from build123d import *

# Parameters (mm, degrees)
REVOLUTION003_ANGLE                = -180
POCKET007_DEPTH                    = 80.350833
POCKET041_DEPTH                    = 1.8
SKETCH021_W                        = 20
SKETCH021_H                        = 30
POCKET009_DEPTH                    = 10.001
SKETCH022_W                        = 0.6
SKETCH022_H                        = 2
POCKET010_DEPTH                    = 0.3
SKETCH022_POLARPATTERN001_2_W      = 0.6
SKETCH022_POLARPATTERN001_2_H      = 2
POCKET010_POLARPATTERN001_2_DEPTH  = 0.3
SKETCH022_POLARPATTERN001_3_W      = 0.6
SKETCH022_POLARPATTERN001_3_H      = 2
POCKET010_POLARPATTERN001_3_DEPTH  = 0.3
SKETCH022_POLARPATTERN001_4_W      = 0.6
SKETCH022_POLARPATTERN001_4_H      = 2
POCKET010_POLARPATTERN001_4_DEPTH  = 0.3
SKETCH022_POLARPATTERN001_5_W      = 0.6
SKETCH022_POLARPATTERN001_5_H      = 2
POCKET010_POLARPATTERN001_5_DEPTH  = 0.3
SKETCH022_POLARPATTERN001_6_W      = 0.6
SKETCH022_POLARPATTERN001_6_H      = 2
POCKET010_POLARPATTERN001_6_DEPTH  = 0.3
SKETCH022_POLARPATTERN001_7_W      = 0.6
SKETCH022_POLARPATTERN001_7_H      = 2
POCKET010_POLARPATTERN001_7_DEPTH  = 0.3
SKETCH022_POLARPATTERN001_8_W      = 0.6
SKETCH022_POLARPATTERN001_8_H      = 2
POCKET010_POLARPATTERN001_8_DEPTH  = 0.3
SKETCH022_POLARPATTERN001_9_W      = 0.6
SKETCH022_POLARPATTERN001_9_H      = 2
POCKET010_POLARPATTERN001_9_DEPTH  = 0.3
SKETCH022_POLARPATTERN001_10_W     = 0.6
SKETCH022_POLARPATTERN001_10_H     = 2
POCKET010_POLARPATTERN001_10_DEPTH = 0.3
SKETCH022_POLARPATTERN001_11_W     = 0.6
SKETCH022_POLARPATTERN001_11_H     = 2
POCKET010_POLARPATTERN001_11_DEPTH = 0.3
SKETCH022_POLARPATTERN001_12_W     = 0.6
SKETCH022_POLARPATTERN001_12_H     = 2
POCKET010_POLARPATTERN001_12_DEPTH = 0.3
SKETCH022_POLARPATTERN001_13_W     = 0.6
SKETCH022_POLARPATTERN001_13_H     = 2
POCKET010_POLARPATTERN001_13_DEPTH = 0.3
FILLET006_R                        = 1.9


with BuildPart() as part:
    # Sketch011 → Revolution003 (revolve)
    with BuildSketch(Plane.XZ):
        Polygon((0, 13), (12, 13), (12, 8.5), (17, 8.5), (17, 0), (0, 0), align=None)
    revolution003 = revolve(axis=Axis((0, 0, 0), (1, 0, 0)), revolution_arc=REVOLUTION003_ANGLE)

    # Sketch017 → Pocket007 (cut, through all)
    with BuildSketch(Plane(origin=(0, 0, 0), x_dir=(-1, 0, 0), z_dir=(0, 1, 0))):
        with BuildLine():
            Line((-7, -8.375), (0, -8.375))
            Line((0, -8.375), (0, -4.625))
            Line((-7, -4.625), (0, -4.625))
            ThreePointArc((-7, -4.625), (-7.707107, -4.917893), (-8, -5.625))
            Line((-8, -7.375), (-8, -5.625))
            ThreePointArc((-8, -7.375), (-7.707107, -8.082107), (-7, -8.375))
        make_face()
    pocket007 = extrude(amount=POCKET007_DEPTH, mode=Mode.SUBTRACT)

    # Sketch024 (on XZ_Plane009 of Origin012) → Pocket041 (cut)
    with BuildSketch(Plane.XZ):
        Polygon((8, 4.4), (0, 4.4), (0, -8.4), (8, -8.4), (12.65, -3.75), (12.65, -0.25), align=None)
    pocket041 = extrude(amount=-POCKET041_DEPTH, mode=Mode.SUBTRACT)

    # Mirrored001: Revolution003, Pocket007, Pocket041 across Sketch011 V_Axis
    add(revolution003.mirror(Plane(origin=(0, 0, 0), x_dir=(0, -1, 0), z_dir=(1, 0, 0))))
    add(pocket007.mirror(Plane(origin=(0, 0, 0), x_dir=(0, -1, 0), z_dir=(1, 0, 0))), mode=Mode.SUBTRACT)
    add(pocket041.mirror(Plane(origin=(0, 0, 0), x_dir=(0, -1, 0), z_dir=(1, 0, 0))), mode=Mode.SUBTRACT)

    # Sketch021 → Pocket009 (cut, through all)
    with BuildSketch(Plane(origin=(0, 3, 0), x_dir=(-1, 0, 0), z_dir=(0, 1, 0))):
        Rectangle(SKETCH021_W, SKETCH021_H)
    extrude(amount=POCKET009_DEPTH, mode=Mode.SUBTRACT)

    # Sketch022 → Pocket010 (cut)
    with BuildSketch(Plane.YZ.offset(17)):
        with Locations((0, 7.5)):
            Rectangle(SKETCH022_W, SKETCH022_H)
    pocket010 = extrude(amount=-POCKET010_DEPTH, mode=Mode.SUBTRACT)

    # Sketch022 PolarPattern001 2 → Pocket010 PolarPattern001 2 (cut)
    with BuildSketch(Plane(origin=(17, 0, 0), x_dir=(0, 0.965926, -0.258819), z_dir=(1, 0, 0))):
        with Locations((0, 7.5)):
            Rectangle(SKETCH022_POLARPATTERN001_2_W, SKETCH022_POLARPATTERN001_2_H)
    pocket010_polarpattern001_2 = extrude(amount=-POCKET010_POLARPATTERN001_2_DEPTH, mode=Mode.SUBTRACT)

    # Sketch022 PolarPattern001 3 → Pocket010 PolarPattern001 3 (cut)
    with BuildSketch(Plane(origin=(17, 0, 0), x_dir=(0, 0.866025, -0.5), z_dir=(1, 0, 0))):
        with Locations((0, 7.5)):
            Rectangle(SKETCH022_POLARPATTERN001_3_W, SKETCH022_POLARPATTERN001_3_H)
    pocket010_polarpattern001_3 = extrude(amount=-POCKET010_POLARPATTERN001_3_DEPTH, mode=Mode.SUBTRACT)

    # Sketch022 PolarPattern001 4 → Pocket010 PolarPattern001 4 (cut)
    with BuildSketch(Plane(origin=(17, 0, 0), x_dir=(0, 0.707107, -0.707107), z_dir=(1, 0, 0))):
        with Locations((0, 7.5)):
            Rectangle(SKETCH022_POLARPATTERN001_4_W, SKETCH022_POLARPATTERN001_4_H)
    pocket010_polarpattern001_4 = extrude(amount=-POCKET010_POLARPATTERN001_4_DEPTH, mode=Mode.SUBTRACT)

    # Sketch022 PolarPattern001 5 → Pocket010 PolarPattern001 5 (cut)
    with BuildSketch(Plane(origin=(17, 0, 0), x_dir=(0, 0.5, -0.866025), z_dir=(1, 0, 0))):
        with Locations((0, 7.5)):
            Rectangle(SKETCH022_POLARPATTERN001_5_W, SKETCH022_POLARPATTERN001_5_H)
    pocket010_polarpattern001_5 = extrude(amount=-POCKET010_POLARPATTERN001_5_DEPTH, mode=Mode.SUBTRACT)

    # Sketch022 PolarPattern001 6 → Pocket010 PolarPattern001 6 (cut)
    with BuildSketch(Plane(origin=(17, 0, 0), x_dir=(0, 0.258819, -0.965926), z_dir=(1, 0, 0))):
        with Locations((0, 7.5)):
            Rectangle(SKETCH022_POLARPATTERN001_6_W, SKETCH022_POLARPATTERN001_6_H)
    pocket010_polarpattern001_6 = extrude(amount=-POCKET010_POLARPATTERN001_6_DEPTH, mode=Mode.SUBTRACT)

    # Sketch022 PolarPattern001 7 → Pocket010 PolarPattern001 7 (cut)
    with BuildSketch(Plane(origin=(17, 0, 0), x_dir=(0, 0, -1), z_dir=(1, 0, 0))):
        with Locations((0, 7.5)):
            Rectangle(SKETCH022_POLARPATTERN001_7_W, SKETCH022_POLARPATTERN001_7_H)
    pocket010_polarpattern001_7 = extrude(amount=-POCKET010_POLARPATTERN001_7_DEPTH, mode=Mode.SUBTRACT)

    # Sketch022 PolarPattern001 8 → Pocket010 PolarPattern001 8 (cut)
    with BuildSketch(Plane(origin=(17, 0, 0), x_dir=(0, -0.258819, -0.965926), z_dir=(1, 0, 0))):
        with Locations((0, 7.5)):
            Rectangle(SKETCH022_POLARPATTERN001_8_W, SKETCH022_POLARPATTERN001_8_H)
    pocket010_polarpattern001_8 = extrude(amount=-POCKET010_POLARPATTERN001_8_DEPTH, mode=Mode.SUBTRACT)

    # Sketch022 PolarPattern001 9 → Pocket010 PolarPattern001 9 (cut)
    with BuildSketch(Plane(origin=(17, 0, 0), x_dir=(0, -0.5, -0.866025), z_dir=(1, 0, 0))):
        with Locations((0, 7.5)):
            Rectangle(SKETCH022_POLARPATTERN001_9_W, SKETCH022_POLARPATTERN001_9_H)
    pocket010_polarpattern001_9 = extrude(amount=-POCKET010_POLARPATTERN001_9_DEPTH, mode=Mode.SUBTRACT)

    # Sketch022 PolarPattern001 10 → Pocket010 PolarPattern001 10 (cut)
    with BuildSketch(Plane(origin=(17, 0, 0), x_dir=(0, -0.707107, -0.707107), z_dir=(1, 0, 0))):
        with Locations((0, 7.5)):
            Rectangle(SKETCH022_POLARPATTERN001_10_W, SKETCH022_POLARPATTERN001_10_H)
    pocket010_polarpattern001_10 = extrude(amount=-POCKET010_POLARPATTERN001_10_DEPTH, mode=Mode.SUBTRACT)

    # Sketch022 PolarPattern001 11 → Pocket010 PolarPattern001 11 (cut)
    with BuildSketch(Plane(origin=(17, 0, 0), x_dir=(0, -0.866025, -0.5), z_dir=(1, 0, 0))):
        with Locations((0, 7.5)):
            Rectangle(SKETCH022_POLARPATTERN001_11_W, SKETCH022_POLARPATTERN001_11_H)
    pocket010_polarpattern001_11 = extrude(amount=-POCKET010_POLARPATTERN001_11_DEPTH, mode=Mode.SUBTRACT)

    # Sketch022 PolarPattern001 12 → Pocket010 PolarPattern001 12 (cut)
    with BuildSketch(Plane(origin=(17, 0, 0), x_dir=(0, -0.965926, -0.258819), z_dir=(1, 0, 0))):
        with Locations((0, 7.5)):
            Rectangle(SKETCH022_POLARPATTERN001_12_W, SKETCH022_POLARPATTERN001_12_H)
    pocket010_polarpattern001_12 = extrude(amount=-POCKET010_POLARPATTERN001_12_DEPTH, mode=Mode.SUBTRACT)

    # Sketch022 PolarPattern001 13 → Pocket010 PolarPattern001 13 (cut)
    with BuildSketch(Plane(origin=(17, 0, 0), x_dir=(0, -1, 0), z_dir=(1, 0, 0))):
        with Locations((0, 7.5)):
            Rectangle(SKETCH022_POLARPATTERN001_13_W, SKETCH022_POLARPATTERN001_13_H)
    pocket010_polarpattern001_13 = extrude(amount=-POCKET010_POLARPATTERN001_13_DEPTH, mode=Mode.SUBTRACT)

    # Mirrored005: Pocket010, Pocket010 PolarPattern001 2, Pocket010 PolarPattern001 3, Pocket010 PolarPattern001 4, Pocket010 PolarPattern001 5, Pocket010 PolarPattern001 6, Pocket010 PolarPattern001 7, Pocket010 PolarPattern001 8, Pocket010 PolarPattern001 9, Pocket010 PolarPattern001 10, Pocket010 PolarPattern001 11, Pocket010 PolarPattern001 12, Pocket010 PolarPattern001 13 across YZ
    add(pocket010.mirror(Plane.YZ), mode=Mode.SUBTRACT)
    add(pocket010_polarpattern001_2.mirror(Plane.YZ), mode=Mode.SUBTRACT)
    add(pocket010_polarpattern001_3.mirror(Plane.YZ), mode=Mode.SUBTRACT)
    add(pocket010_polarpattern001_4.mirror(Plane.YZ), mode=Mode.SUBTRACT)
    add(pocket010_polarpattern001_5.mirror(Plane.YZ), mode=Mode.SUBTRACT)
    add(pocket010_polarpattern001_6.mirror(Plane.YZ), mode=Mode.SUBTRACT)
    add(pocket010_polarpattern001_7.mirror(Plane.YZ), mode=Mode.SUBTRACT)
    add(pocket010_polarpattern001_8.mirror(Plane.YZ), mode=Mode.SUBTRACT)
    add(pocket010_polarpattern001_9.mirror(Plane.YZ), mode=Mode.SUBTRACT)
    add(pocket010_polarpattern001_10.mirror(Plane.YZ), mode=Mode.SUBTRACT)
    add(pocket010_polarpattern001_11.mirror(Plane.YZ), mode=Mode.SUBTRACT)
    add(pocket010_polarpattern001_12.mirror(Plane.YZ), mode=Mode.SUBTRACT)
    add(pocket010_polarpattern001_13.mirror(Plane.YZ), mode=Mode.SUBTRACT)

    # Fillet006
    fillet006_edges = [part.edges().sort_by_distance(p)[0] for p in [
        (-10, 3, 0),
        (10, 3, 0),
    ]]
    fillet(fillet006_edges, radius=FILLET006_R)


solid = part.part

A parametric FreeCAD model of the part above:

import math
import FreeCAD as App
import Part
import Sketcher
Q = App.Units.Quantity


def edges_at(feature, points):
    """Names of the edges that pass closest to the given points."""
    edges = feature.Shape.Edges
    near = lambda p: min(range(len(edges)), key=lambda i: edges[i].distToShape(Part.Vertex(*p))[0])
    return sorted({f"Edge{near(p) + 1}" for p in points})


def add_polygon(sketch, points):
    """Adds a closed chain of lines whose ends are joined by coincident constraints."""
    first, n = sketch.GeometryCount, len(points)
    for a, b in zip(points, points[1:] + points[:1]):
        sketch.addGeometry(Part.LineSegment(App.Vector(*a, 0), App.Vector(*b, 0)), False)
    for i in range(n):
        sketch.addConstraint(Sketcher.Constraint("Coincident", first + i, 2, first + (i + 1) % n, 1))

doc = App.newDocument("Part")
body = doc.addObject("PartDesign::Body", "Body")

# Sketch on XZ plane
sketch1 = body.newObject("Sketcher::SketchObject", "Sketch")
sketch1.AttachmentSupport = (doc.getObject("XZ_Plane"), [""])
sketch1.MapMode = "FlatFace"
add_polygon(sketch1, [(12, 13), (0, 13), (0, 0), (17, 0), (17, 8.5), (12, 8.5)])  # lines 0-5
sketch1.addConstraint([
    Sketcher.Constraint("Horizontal", 0),
    Sketcher.Constraint("Vertical", 1),
    Sketcher.Constraint("Horizontal", 2),
    Sketcher.Constraint("Vertical", 3),
    Sketcher.Constraint("Horizontal", 4),
    Sketcher.Constraint("Vertical", 5),
    Sketcher.Constraint("Coincident", 1, 2, -1, 1),
    Sketcher.Constraint("DistanceX", 0, 2, 0, 1, Q("12 mm")),
    Sketcher.Constraint("DistanceX", 2, 1, 2, 2, Q("17 mm")),
    Sketcher.Constraint("DistanceY", 1, 2, 1, 1, Q("13 mm")),
    Sketcher.Constraint("DistanceY", 3, 1, 3, 2, Q("8.5 mm")),
])
revolution = body.newObject("PartDesign::Revolution", "Revolution")
revolution.Profile = sketch1
revolution.ReferenceAxis = (sketch1, ["H_Axis"])
revolution.Angle = 180
revolution.Reversed = True

# Sketch on XZ plane
sketch2 = body.newObject("Sketcher::SketchObject", "Sketch001")
sketch2.AttachmentSupport = (doc.getObject("XZ_Plane"), [""])
sketch2.MapMode = "FlatFace"
sketch2.addGeometry([
    Part.LineSegment(App.Vector(7, -8.4, 0), App.Vector(0, -8.4, 0)),  # 0
    Part.LineSegment(App.Vector(0, -8.4, 0), App.Vector(0, -4.6, 0)),  # 1
    Part.LineSegment(App.Vector(0, -4.6, 0), App.Vector(7, -4.6, 0)),  # 2
    Part.ArcOfCircle(Part.Circle(App.Vector(7, -5.6, 0), App.Vector(0, 0, 1), 1), math.radians(0), math.radians(90)),  # 3
    Part.LineSegment(App.Vector(8, -5.6, 0), App.Vector(8, -7.4, 0)),  # 4
    Part.ArcOfCircle(Part.Circle(App.Vector(7, -7.4, 0), App.Vector(0, 0, 1), 1), math.radians(-90), math.radians(0)),  # 5
], False)
sketch2.addConstraint([
    Sketcher.Constraint("Coincident", 0, 2, 1, 1),
    Sketcher.Constraint("Coincident", 1, 2, 2, 1),
    Sketcher.Constraint("Tangent", 2, 2, 3, 2),
    Sketcher.Constraint("Tangent", 3, 1, 4, 1),
    Sketcher.Constraint("Tangent", 4, 2, 5, 2),
    Sketcher.Constraint("Tangent", 5, 1, 0, 1),
    Sketcher.Constraint("Horizontal", 0),
    Sketcher.Constraint("Vertical", 1),
    Sketcher.Constraint("Horizontal", 2),
    Sketcher.Constraint("Vertical", 4),
    Sketcher.Constraint("Equal", 3, 5),
    Sketcher.Constraint("PointOnObject", 0, 2, -2),
    Sketcher.Constraint("Radius", 3, Q("0.999999 mm")),
    Sketcher.Constraint("DistanceX", 0, 2, 0, 1, Q("7 mm")),
    Sketcher.Constraint("DistanceY", 1, 1, 1, 2, Q("3.75 mm")),
    Sketcher.Constraint("DistanceY", 3, 3, -1, 1, Q("5.624999 mm")),
])
pocket1 = body.newObject("PartDesign::Pocket", "Pocket")
pocket1.Profile = sketch2
pocket1.Type = "ThroughAll"

# Sketch on XZ plane
sketch3 = body.newObject("Sketcher::SketchObject", "Sketch002")
sketch3.AttachmentSupport = (doc.getObject("XZ_Plane"), [""])
sketch3.MapMode = "FlatFace"
add_polygon(sketch3, [(8, 4.4), (0, 4.4), (0, -8.4), (8, -8.4), (12.7, -3.8), (12.7, -0.2)])  # lines 0-5
sketch3.addConstraint([
    Sketcher.Constraint("Horizontal", 0),
    Sketcher.Constraint("Vertical", 1),
    Sketcher.Constraint("Horizontal", 2),
    Sketcher.Constraint("Vertical", 4),
    Sketcher.Constraint("PointOnObject", 0, 2, -2),
    Sketcher.Constraint("Perpendicular", 3, 5),
    Sketcher.Constraint("Vertical", 2, 2, 5, 2),
    Sketcher.Constraint("Equal", 3, 5),
    Sketcher.Constraint("DistanceX", 0, 2, 0, 1, Q("8 mm")),
    Sketcher.Constraint("DistanceY", 1, 2, 1, 1, Q("12.8 mm")),
    Sketcher.Constraint("DistanceY", 4, 1, 4, 2, Q("3.5 mm")),
    Sketcher.Constraint("DistanceY", -1, 1, 0, 2, Q("4.4 mm")),
])
pocket2 = body.newObject("PartDesign::Pocket", "Pocket001")
pocket2.Profile = sketch3
pocket2.Length = 1.8
doc.recompute()

mirrored = body.newObject("PartDesign::Mirrored", "Mirrored")
mirrored.Originals = [revolution, pocket1, pocket2]
mirrored.MirrorPlane = (doc.getObject("YZ_Plane"), [""])
body.Tip = mirrored

# Sketch on XZ plane
sketch4 = body.newObject("Sketcher::SketchObject", "Sketch003")
sketch4.AttachmentSupport = (doc.getObject("XZ_Plane"), [""])
sketch4.MapMode = "FlatFace"
sketch4.AttachmentOffset = App.Placement(App.Vector(0, 0, -3), App.Rotation())
add_polygon(sketch4, [(10, 15), (10, -15), (-10, -15), (-10, 15)])  # lines 0-3
sketch4.addConstraint([
    Sketcher.Constraint("Vertical", 0),
    Sketcher.Constraint("Horizontal", 1),
    Sketcher.Constraint("Vertical", 2),
    Sketcher.Constraint("Horizontal", 3),
    Sketcher.Constraint("Symmetric", 0, 2, 2, 2, -1, 1),
    Sketcher.Constraint("DistanceX", 1, 2, 1, 1, Q("20 mm")),
    Sketcher.Constraint("DistanceY", 0, 2, 0, 1, Q("30 mm")),
])
pocket3 = body.newObject("PartDesign::Pocket", "Pocket002")
pocket3.Profile = sketch4
pocket3.Type = "ThroughAll"

# Sketch on YZ plane
sketch5 = body.newObject("Sketcher::SketchObject", "Sketch004")
sketch5.AttachmentSupport = (doc.getObject("YZ_Plane"), [""])
sketch5.MapMode = "FlatFace"
sketch5.AttachmentOffset = App.Placement(App.Vector(0, 0, 17), App.Rotation())
add_polygon(sketch5, [(-0.3, 8.5), (-0.3, 6.5), (0.3, 6.5), (0.3, 8.5)])  # lines 0-3
sketch5.addConstraint([
    Sketcher.Constraint("Vertical", 0),
    Sketcher.Constraint("Horizontal", 1),
    Sketcher.Constraint("Vertical", 2),
    Sketcher.Constraint("Horizontal", 3),
    Sketcher.Constraint("DistanceY", 0, 2, 0, 1, Q("2 mm")),
    Sketcher.Constraint("DistanceX", 1, 1, 1, 2, Q("0.6 mm")),
    Sketcher.Constraint("DistanceX", 0, 2, -1, 1, Q("0.3 mm")),
    Sketcher.Constraint("DistanceY", -1, 1, 0, 2, Q("6.5 mm")),
])
pocket4 = body.newObject("PartDesign::Pocket", "Pocket003")
pocket4.Profile = sketch5
pocket4.Length = 0.3

# Sketch on YZ plane
sketch6 = body.newObject("Sketcher::SketchObject", "Sketch005")
sketch6.AttachmentSupport = (doc.getObject("YZ_Plane"), [""])
sketch6.MapMode = "FlatFace"
sketch6.AttachmentOffset = App.Placement(App.Vector(0, 0, 17), App.Rotation())
add_polygon(sketch6, [(1.9, 8.3), (1.4, 6.4), (2, 6.2), (2.5, 8.1)])  # lines 0-3
sketch6.addConstraint([
    Sketcher.Constraint("Perpendicular", 0, 1),
    Sketcher.Constraint("Perpendicular", 1, 2),
    Sketcher.Constraint("Perpendicular", 2, 3),
    Sketcher.Constraint("Angle", 0, Q("-104.999995 deg")),
    Sketcher.Constraint("Distance", 0, Q("2 mm")),
    Sketcher.Constraint("Distance", 1, Q("0.6 mm")),
    Sketcher.Constraint("DistanceX", -1, 1, 1, 2, Q("1.972101 mm")),
    Sketcher.Constraint("DistanceY", -1, 1, 0, 2, Q("6.356164 mm")),
])
pocket5 = body.newObject("PartDesign::Pocket", "Pocket004")
pocket5.Profile = sketch6
pocket5.Length = 0.3

# Sketch on YZ plane
sketch7 = body.newObject("Sketcher::SketchObject", "Sketch006")
sketch7.AttachmentSupport = (doc.getObject("YZ_Plane"), [""])
sketch7.MapMode = "FlatFace"
sketch7.AttachmentOffset = App.Placement(App.Vector(0, 0, 17), App.Rotation())
add_polygon(sketch7, [(4, 7.5), (3, 5.8), (3.5, 5.5), (4.5, 7.2)])  # lines 0-3
sketch7.addConstraint([
    Sketcher.Constraint("Perpendicular", 0, 1),
    Sketcher.Constraint("Perpendicular", 1, 2),
    Sketcher.Constraint("Perpendicular", 2, 3),
    Sketcher.Constraint("Angle", 0, Q("-120.000012 deg")),
    Sketcher.Constraint("Distance", 0, Q("2 mm")),
    Sketcher.Constraint("Distance", 1, Q("0.6 mm")),
    Sketcher.Constraint("DistanceX", -1, 1, 1, 2, Q("3.509809 mm")),
    Sketcher.Constraint("DistanceY", -1, 1, 0, 2, Q("5.779165 mm")),
])
pocket6 = body.newObject("PartDesign::Pocket", "Pocket005")
pocket6.Profile = sketch7
pocket6.Length = 0.3

# Sketch on YZ plane
sketch8 = body.newObject("Sketcher::SketchObject", "Sketch007")
sketch8.AttachmentSupport = (doc.getObject("YZ_Plane"), [""])
sketch8.MapMode = "FlatFace"
sketch8.AttachmentOffset = App.Placement(App.Vector(0, 0, 17), App.Rotation())
add_polygon(sketch8, [(5.8, 6.2), (4.4, 4.8), (4.8, 4.4), (6.2, 5.8)])  # lines 0-3
sketch8.addConstraint([
    Sketcher.Constraint("Perpendicular", 0, 1),
    Sketcher.Constraint("Perpendicular", 1, 2),
    Sketcher.Constraint("Perpendicular", 2, 3),
    Sketcher.Constraint("Angle", 0, Q("-135 deg")),
    Sketcher.Constraint("Distance", 0, Q("2 mm")),
    Sketcher.Constraint("Distance", 1, Q("0.6 mm")),
    Sketcher.Constraint("DistanceX", -1, 1, 2, 2, Q("6.22254 mm")),
    Sketcher.Constraint("DistanceY", -1, 1, 3, 2, Q("6.22254 mm")),
])
pocket7 = body.newObject("PartDesign::Pocket", "Pocket006")
pocket7.Profile = sketch8
pocket7.Length = 0.3

# Sketch on YZ plane
sketch9 = body.newObject("Sketcher::SketchObject", "Sketch008")
sketch9.AttachmentSupport = (doc.getObject("YZ_Plane"), [""])
sketch9.MapMode = "FlatFace"
sketch9.AttachmentOffset = App.Placement(App.Vector(0, 0, 17), App.Rotation())
add_polygon(sketch9, [(7.2, 4.5), (5.5, 3.5), (5.8, 3), (7.5, 4)])  # lines 0-3
sketch9.addConstraint([
    Sketcher.Constraint("Perpendicular", 0, 1),
    Sketcher.Constraint("Perpendicular", 1, 2),
    Sketcher.Constraint("Perpendicular", 2, 3),
    Sketcher.Constraint("Angle", 0, Q("-149.999988 deg")),
    Sketcher.Constraint("Distance", 0, Q("2 mm")),
    Sketcher.Constraint("Distance", 1, Q("0.6 mm")),
    Sketcher.Constraint("DistanceY", -1, 1, 0, 2, Q("3.509809 mm")),
    Sketcher.Constraint("DistanceX", -1, 1, 0, 2, Q("5.479164 mm")),
])
pocket8 = body.newObject("PartDesign::Pocket", "Pocket007")
pocket8.Profile = sketch9
pocket8.Length = 0.3

# Sketch on YZ plane
sketch10 = body.newObject("Sketcher::SketchObject", "Sketch009")
sketch10.AttachmentSupport = (doc.getObject("YZ_Plane"), [""])
sketch10.MapMode = "FlatFace"
sketch10.AttachmentOffset = App.Placement(App.Vector(0, 0, 17), App.Rotation())
add_polygon(sketch10, [(8.1, 2.5), (6.2, 2), (6.4, 1.4), (8.3, 1.9)])  # lines 0-3
sketch10.addConstraint([
    Sketcher.Constraint("Perpendicular", 0, 1),
    Sketcher.Constraint("Perpendicular", 1, 2),
    Sketcher.Constraint("Perpendicular", 2, 3),
    Sketcher.Constraint("Angle", 0, Q("-165.000005 deg")),
    Sketcher.Constraint("Distance", 0, Q("2 mm")),
    Sketcher.Constraint("Distance", 1, Q("0.6 mm")),
    Sketcher.Constraint("DistanceY", -1, 1, 0, 2, Q("1.972101 mm")),
    Sketcher.Constraint("DistanceX", -1, 1, 0, 2, Q("6.200872 mm")),
])
pocket9 = body.newObject("PartDesign::Pocket", "Pocket008")
pocket9.Profile = sketch10
pocket9.Length = 0.3

# Sketch on YZ plane
sketch11 = body.newObject("Sketcher::SketchObject", "Sketch010")
sketch11.AttachmentSupport = (doc.getObject("YZ_Plane"), [""])
sketch11.MapMode = "FlatFace"
sketch11.AttachmentOffset = App.Placement(App.Vector(0, 0, 17), App.Rotation())
add_polygon(sketch11, [(8.5, 0.3), (6.5, 0.3), (6.5, -0.3), (8.5, -0.3)])  # lines 0-3
sketch11.addConstraint([
    Sketcher.Constraint("Horizontal", 0),
    Sketcher.Constraint("Vertical", 1),
    Sketcher.Constraint("Horizontal", 2),
    Sketcher.Constraint("Vertical", 3),
    Sketcher.Constraint("DistanceX", 0, 2, 0, 1, Q("2 mm")),
    Sketcher.Constraint("DistanceY", 1, 2, 1, 1, Q("0.6 mm")),
    Sketcher.Constraint("DistanceX", -1, 1, 0, 2, Q("6.5 mm")),
    Sketcher.Constraint("DistanceY", -1, 1, 0, 2, Q("0.3 mm")),
])
pocket10 = body.newObject("PartDesign::Pocket", "Pocket009")
pocket10.Profile = sketch11
pocket10.Length = 0.3

# Sketch on YZ plane
sketch12 = body.newObject("Sketcher::SketchObject", "Sketch011")
sketch12.AttachmentSupport = (doc.getObject("YZ_Plane"), [""])
sketch12.MapMode = "FlatFace"
sketch12.AttachmentOffset = App.Placement(App.Vector(0, 0, 17), App.Rotation())
add_polygon(sketch12, [(8.3, -1.9), (6.4, -1.4), (6.2, -2), (8.1, -2.5)])  # lines 0-3
sketch12.addConstraint([
    Sketcher.Constraint("Perpendicular", 0, 1),
    Sketcher.Constraint("Perpendicular", 1, 2),
    Sketcher.Constraint("Perpendicular", 2, 3),
    Sketcher.Constraint("Angle", 0, Q("165.000005 deg")),
    Sketcher.Constraint("Distance", 0, Q("2 mm")),
    Sketcher.Constraint("Distance", 1, Q("0.6 mm")),
    Sketcher.Constraint("DistanceY", 1, 2, -1, 1, Q("1.972101 mm")),
    Sketcher.Constraint("DistanceX", -1, 1, 0, 2, Q("6.356164 mm")),
])
pocket11 = body.newObject("PartDesign::Pocket", "Pocket010")
pocket11.Profile = sketch12
pocket11.Length = 0.3

# Sketch on YZ plane
sketch13 = body.newObject("Sketcher::SketchObject", "Sketch012")
sketch13.AttachmentSupport = (doc.getObject("YZ_Plane"), [""])
sketch13.MapMode = "FlatFace"
sketch13.AttachmentOffset = App.Placement(App.Vector(0, 0, 17), App.Rotation())
add_polygon(sketch13, [(7.5, -4), (5.8, -3), (5.5, -3.5), (7.2, -4.5)])  # lines 0-3
sketch13.addConstraint([
    Sketcher.Constraint("Perpendicular", 0, 1),
    Sketcher.Constraint("Perpendicular", 1, 2),
    Sketcher.Constraint("Perpendicular", 2, 3),
    Sketcher.Constraint("Angle", 0, Q("149.999988 deg")),
    Sketcher.Constraint("Distance", 0, Q("2 mm")),
    Sketcher.Constraint("Distance", 1, Q("0.6 mm")),
    Sketcher.Constraint("DistanceY", 1, 2, -1, 1, Q("3.509809 mm")),
    Sketcher.Constraint("DistanceX", -1, 1, 0, 2, Q("5.779165 mm")),
])
pocket12 = body.newObject("PartDesign::Pocket", "Pocket011")
pocket12.Profile = sketch13
pocket12.Length = 0.3

# Sketch on YZ plane
sketch14 = body.newObject("Sketcher::SketchObject", "Sketch013")
sketch14.AttachmentSupport = (doc.getObject("YZ_Plane"), [""])
sketch14.MapMode = "FlatFace"
sketch14.AttachmentOffset = App.Placement(App.Vector(0, 0, 17), App.Rotation())
add_polygon(sketch14, [(6.2, -5.8), (4.8, -4.4), (4.4, -4.8), (5.8, -6.2)])  # lines 0-3
sketch14.addConstraint([
    Sketcher.Constraint("Perpendicular", 0, 1),
    Sketcher.Constraint("Perpendicular", 1, 2),
    Sketcher.Constraint("Perpendicular", 2, 3),
    Sketcher.Constraint("Angle", 0, Q("135 deg")),
    Sketcher.Constraint("Distance", 0, Q("2 mm")),
    Sketcher.Constraint("Distance", 1, Q("0.6 mm")),
    Sketcher.Constraint("DistanceY", 2, 2, -1, 1, Q("6.22254 mm")),
    Sketcher.Constraint("DistanceX", -1, 1, 3, 2, Q("6.22254 mm")),
])
pocket13 = body.newObject("PartDesign::Pocket", "Pocket012")
pocket13.Profile = sketch14
pocket13.Length = 0.3

# Sketch on YZ plane
sketch15 = body.newObject("Sketcher::SketchObject", "Sketch014")
sketch15.AttachmentSupport = (doc.getObject("YZ_Plane"), [""])
sketch15.MapMode = "FlatFace"
sketch15.AttachmentOffset = App.Placement(App.Vector(0, 0, 17), App.Rotation())
add_polygon(sketch15, [(4.5, -7.2), (3.5, -5.5), (3, -5.8), (4, -7.5)])  # lines 0-3
sketch15.addConstraint([
    Sketcher.Constraint("Perpendicular", 0, 1),
    Sketcher.Constraint("Perpendicular", 1, 2),
    Sketcher.Constraint("Perpendicular", 2, 3),
    Sketcher.Constraint("Angle", 0, Q("120.000012 deg")),
    Sketcher.Constraint("Distance", 0, Q("2 mm")),
    Sketcher.Constraint("Distance", 1, Q("0.6 mm")),
    Sketcher.Constraint("DistanceX", -1, 1, 0, 2, Q("3.509809 mm")),
    Sketcher.Constraint("DistanceY", 0, 2, -1, 1, Q("5.479164 mm")),
])
pocket14 = body.newObject("PartDesign::Pocket", "Pocket013")
pocket14.Profile = sketch15
pocket14.Length = 0.3

# Sketch on YZ plane
sketch16 = body.newObject("Sketcher::SketchObject", "Sketch015")
sketch16.AttachmentSupport = (doc.getObject("YZ_Plane"), [""])
sketch16.MapMode = "FlatFace"
sketch16.AttachmentOffset = App.Placement(App.Vector(0, 0, 17), App.Rotation())
add_polygon(sketch16, [(2.5, -8.1), (2, -6.2), (1.4, -6.4), (1.9, -8.3)])  # lines 0-3
sketch16.addConstraint([
    Sketcher.Constraint("Perpendicular", 0, 1),
    Sketcher.Constraint("Perpendicular", 1, 2),
    Sketcher.Constraint("Perpendicular", 2, 3),
    Sketcher.Constraint("Angle", 0, Q("104.999995 deg")),
    Sketcher.Constraint("Distance", 0, Q("2 mm")),
    Sketcher.Constraint("Distance", 1, Q("0.6 mm")),
    Sketcher.Constraint("DistanceX", -1, 1, 0, 2, Q("1.972101 mm")),
    Sketcher.Constraint("DistanceY", 0, 2, -1, 1, Q("6.200872 mm")),
])
pocket15 = body.newObject("PartDesign::Pocket", "Pocket014")
pocket15.Profile = sketch16
pocket15.Length = 0.3

# Sketch on YZ plane
sketch17 = body.newObject("Sketcher::SketchObject", "Sketch016")
sketch17.AttachmentSupport = (doc.getObject("YZ_Plane"), [""])
sketch17.MapMode = "FlatFace"
sketch17.AttachmentOffset = App.Placement(App.Vector(0, 0, 17), App.Rotation())
add_polygon(sketch17, [(0.3, -8.5), (0.3, -6.5), (-0.3, -6.5), (-0.3, -8.5)])  # lines 0-3
sketch17.addConstraint([
    Sketcher.Constraint("Vertical", 0),
    Sketcher.Constraint("Horizontal", 1),
    Sketcher.Constraint("Vertical", 2),
    Sketcher.Constraint("Horizontal", 3),
    Sketcher.Constraint("DistanceY", 0, 1, 0, 2, Q("2 mm")),
    Sketcher.Constraint("DistanceX", 1, 2, 1, 1, Q("0.6 mm")),
    Sketcher.Constraint("DistanceX", -1, 1, 0, 2, Q("0.3 mm")),
    Sketcher.Constraint("DistanceY", 0, 2, -1, 1, Q("6.5 mm")),
])
pocket16 = body.newObject("PartDesign::Pocket", "Pocket015")
pocket16.Profile = sketch17
pocket16.Length = 0.3
doc.recompute()

mirrored2 = body.newObject("PartDesign::Mirrored", "Mirrored001")
mirrored2.Originals = [pocket4, pocket5, pocket6, pocket7, pocket8, pocket9, pocket10, pocket11, pocket12, pocket13, pocket14, pocket15, pocket16]
mirrored2.MirrorPlane = (doc.getObject("YZ_Plane"), [""])
body.Tip = mirrored2
doc.recompute()

fillet = body.newObject("PartDesign::Fillet", "Fillet")
fillet.Base = (mirrored2, edges_at(mirrored2, [(-10, 3, 0), (10, 3, 0)]))
fillet.Radius = 1.9

doc.recompute()
